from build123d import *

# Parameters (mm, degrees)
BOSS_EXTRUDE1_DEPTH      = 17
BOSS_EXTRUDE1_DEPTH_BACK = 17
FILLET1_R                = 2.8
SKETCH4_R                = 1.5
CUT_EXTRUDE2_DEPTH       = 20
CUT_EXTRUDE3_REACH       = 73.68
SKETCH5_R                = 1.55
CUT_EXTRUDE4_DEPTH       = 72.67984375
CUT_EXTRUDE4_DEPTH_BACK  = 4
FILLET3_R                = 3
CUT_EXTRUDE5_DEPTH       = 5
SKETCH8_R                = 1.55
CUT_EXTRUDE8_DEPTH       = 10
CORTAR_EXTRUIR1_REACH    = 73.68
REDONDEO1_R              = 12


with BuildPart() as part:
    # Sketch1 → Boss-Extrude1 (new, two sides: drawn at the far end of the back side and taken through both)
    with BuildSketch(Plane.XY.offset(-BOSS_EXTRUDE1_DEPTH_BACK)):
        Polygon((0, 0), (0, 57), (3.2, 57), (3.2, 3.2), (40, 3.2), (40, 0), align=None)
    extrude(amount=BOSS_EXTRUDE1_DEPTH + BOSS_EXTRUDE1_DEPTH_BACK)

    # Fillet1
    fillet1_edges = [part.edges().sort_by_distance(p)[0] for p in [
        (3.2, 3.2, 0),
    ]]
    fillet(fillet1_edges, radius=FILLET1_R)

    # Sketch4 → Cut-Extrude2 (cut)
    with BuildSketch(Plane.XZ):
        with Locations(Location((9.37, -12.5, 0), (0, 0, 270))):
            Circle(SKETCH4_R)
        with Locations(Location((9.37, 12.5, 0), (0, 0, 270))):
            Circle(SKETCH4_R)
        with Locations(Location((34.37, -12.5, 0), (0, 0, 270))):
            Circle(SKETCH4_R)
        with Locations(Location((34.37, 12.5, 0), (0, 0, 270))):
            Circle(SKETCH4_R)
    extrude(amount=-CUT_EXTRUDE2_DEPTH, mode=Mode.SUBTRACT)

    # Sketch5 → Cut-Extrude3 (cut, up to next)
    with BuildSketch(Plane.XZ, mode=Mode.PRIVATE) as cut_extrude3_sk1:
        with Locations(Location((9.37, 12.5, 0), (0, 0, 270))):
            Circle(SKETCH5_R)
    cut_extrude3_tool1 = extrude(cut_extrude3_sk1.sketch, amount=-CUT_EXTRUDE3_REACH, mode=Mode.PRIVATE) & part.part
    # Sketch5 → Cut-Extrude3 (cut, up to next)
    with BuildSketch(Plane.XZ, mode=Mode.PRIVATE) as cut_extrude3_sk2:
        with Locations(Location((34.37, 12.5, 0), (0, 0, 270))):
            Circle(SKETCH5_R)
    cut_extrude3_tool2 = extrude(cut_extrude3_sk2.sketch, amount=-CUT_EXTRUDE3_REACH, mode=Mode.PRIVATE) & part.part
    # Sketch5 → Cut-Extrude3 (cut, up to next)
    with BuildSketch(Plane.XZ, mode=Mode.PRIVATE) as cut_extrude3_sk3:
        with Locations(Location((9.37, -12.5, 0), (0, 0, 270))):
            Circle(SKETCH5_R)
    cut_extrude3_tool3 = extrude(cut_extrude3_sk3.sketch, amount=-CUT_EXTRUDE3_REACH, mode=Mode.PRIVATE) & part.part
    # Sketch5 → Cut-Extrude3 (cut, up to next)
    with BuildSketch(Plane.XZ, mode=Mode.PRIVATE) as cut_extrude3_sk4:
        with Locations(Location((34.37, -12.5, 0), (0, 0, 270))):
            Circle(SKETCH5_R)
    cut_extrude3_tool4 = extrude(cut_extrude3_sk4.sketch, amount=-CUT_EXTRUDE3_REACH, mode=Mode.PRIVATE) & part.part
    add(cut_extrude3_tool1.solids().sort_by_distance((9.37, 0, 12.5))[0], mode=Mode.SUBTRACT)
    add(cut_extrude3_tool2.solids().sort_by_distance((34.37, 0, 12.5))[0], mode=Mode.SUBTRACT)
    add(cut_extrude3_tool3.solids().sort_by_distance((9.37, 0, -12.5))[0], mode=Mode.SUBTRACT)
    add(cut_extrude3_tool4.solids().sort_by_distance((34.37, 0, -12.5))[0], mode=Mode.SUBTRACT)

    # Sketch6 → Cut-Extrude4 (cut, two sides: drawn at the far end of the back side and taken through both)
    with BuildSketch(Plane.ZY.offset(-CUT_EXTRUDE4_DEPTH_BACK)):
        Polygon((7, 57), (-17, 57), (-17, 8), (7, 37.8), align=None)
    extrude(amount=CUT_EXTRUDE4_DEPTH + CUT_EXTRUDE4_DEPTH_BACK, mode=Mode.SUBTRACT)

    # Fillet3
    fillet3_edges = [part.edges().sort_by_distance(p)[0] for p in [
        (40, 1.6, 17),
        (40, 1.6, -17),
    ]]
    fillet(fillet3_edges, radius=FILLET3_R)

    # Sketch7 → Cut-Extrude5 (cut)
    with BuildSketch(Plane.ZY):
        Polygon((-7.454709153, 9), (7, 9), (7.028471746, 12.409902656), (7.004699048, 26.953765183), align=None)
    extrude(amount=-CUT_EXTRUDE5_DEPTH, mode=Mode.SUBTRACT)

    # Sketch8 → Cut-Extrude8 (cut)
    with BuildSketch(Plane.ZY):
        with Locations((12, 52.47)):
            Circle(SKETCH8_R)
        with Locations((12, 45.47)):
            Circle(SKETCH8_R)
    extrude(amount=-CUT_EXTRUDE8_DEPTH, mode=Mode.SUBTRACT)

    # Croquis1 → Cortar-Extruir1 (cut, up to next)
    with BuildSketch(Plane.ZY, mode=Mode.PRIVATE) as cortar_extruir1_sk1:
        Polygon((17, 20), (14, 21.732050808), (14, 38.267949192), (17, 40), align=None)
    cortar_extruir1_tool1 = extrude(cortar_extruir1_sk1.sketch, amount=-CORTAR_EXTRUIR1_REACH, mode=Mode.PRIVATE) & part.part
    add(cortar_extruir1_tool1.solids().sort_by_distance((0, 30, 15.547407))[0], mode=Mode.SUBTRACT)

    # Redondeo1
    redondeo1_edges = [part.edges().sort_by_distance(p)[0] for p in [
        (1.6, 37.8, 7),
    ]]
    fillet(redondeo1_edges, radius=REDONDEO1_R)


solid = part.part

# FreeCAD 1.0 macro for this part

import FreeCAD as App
import Part
import Sketcher
Q = App.Units.Quantity


def edges_at(feature, points):
    """Names of the edges that pass closest to the given points."""
    edges = feature.Shape.Edges
    near = lambda p: min(range(len(edges)), key=lambda i: edges[i].distToShape(Part.Vertex(*p))[0])
    return sorted({f"Edge{near(p) + 1}" for p in points})

doc = App.newDocument("Part")
params = doc.addObject("Spreadsheet::Sheet", "Params")
for row, (alias, value) in enumerate([
    ("sketch1_width", "40 mm"),
    ("sketch1_height", "57 mm"),
    ("sketch1_width2", "36.8 mm"),
    ("pad1_length", "17 mm"),
    ("pad1_length2", "17 mm"),
    ("fillet_radius", "2.8 mm"),
    ("sketch2_diameter", "3 mm"),
    ("pocket1_length", "20 mm"),
    ("sketch3_diameter", "3.1 mm"),
    ("pocket2_length", "3.2 mm"),
    ("sketch4_diameter", "3.1 mm"),
    ("pocket3_length", "3.2 mm"),
    ("sketch5_diameter", "3.1 mm"),
    ("pocket4_length", "3.2 mm"),
    ("sketch6_diameter", "3.1 mm"),
    ("pocket5_length", "3.2 mm"),
    ("sketch7_width", "49 mm"),
    ("sketch7_height", "24 mm"),
    ("sketch7_width2", "19.2 mm"),
    ("fillet2_radius", "3 mm"),
    ("pocket7_length", "5 mm"),
    ("sketch9_diameter", "3.1 mm"),
    ("pocket8_length", "10 mm"),
    ("sketch10_width", "20 mm"),
    ("fillet3_radius", "12 mm"),
], start=1):
    params.set(f"A{row}", alias)
    params.set(f"B{row}", "=" + value)
    params.setAlias(f"B{row}", alias)

body = doc.addObject("PartDesign::Body", "Body")

# Sketch on XY plane
sketch1 = body.newObject("Sketcher::SketchObject", "Sketch")
sketch1.AttachmentSupport = (doc.getObject("XY_Plane"), [""])
sketch1.MapMode = "FlatFace"
sketch1.addGeometry([
    Part.LineSegment(App.Vector(0, 57, 0), App.Vector(0, 0, 0)),  # 0
    Part.LineSegment(App.Vector(0, 0, 0), App.Vector(40, 0, 0)),  # 1
    Part.LineSegment(App.Vector(40, 0, 0), App.Vector(40, 3.2, 0)),  # 2
    Part.LineSegment(App.Vector(40, 3.2, 0), App.Vector(3.2, 3.2, 0)),  # 3
    Part.LineSegment(App.Vector(3.2, 3.2, 0), App.Vector(3.2, 57, 0)),  # 4
    Part.LineSegment(App.Vector(3.2, 57, 0), App.Vector(0, 57, 0)),  # 5
], False)
sketch1.addConstraint([
    Sketcher.Constraint("Coincident", 0, 2, 1, 1),
    Sketcher.Constraint("Coincident", 1, 2, 2, 1),
    Sketcher.Constraint("Coincident", 2, 2, 3, 1),
    Sketcher.Constraint("Coincident", 3, 2, 4, 1),
    Sketcher.Constraint("Coincident", 4, 2, 5, 1),
    Sketcher.Constraint("Coincident", 5, 2, 0, 1),
    Sketcher.Constraint("Vertical", 0),
    Sketcher.Constraint("Horizontal", 1),
    Sketcher.Constraint("Vertical", 2),
    Sketcher.Constraint("Horizontal", 3),
    Sketcher.Constraint("Vertical", 4),
    Sketcher.Constraint("Horizontal", 5),
    Sketcher.Constraint("Coincident", 0, 2, -1, 1),
    Sketcher.Constraint("Equal", 5, 2),
    Sketcher.Constraint("DistanceX", 1, 1, 1, 2, 40.0),
    Sketcher.Constraint("DistanceY", 0, 2, 0, 1, 57.0),
    Sketcher.Constraint("DistanceX", 3, 2, 3, 1, 36.8),
])
sketch1.setExpression("Constraints[14]", "Params.sketch1_width")
sketch1.setExpression("Constraints[15]", "Params.sketch1_height")
sketch1.setExpression("Constraints[16]", "Params.sketch1_width2")
pad1 = body.newObject("PartDesign::Pad", "Pad")
pad1.Profile = sketch1
pad1.Type = "TwoLengths"
pad1.setExpression("Length", "Params.pad1_length")
pad1.setExpression("Length2", "Params.pad1_length2")
doc.recompute()

fillet = body.newObject("PartDesign::Fillet", "Fillet")
fillet.Base = (pad1, edges_at(pad1, [(3.2, 3.2, 0)]))
fillet.setExpression("Radius", "Params.fillet_radius")

# Sketch on XZ plane
sketch2 = body.newObject("Sketcher::SketchObject", "Sketch001")
sketch2.AttachmentSupport = (doc.getObject("XZ_Plane"), [""])
sketch2.MapMode = "FlatFace"
sketch2.addGeometry([
    Part.Circle(App.Vector(9.4, -12.5, 0), App.Vector(0, 0, 1), 1.5),
    Part.Circle(App.Vector(9.4, 12.5, 0), App.Vector(0, 0, 1), 1.5),
    Part.Circle(App.Vector(34.4, -12.5, 0), App.Vector(0, 0, 1), 1.5),
    Part.Circle(App.Vector(34.4, 12.5, 0), App.Vector(0, 0, 1), 1.5),
], False)
sketch2.addConstraint([
    Sketcher.Constraint("Equal", 0, 1),
    Sketcher.Constraint("Equal", 1, 2),
    Sketcher.Constraint("Equal", 2, 3),
    Sketcher.Constraint("Symmetric", 0, 3, 1, 3, -1),
    Sketcher.Constraint("Symmetric", 2, 3, 3, 3, -1),
    Sketcher.Constraint("Horizontal", 0, 3, 2, 3),
    Sketcher.Constraint("Diameter", 0, 3.0),
    Sketcher.Constraint("DistanceY", 0, 3, 1, 3, 25.0),
    Sketcher.Constraint("DistanceX", 0, 3, 2, 3, 25.0),
    Sketcher.Constraint("DistanceX", -1, 1, 0, 3, 9.37),
])
sketch2.setExpression("Constraints[6]", "Params.sketch2_diameter")
pocket1 = body.newObject("PartDesign::Pocket", "Pocket")
pocket1.Profile = sketch2
pocket1.setExpression("Length", "Params.pocket1_length")

# Sketch on XZ plane
sketch3 = body.newObject("Sketcher::SketchObject", "Sketch002")
sketch3.AttachmentSupport = (doc.getObject("XZ_Plane"), [""])
sketch3.MapMode = "FlatFace"
sketch3.addGeometry(Part.Circle(App.Vector(9.4, 12.5, 0), App.Vector(0, 0, 1), 1.6), False)
sketch3.addConstraint([
    Sketcher.Constraint("Diameter", 0, 3.1),
    Sketcher.Constraint("DistanceY", -1, 1, 0, 3, 12.5),
    Sketcher.Constraint("DistanceX", -1, 1, 0, 3, 9.37),
])
sketch3.setExpression("Constraints[0]", "Params.sketch3_diameter")
pocket2 = body.newObject("PartDesign::Pocket", "Pocket001")
pocket2.Profile = sketch3
pocket2.setExpression("Length", "Params.pocket2_length")

# Sketch on XZ plane
sketch4 = body.newObject("Sketcher::SketchObject", "Sketch003")
sketch4.AttachmentSupport = (doc.getObject("XZ_Plane"), [""])
sketch4.MapMode = "FlatFace"
sketch4.addGeometry(Part.Circle(App.Vector(34.4, 12.5, 0), App.Vector(0, 0, 1), 1.6), False)
sketch4.addConstraint([
    Sketcher.Constraint("Diameter", 0, 3.1),
    Sketcher.Constraint("DistanceY", -1, 1, 0, 3, 12.5),
    Sketcher.Constraint("DistanceX", -1, 1, 0, 3, 34.37),
])
sketch4.setExpression("Constraints[0]", "Params.sketch4_diameter")
pocket3 = body.newObject("PartDesign::Pocket", "Pocket002")
pocket3.Profile = sketch4
pocket3.setExpression("Length", "Params.pocket3_length")

# Sketch on XZ plane
sketch5 = body.newObject("Sketcher::SketchObject", "Sketch004")
sketch5.AttachmentSupport = (doc.getObject("XZ_Plane"), [""])
sketch5.MapMode = "FlatFace"
sketch5.addGeometry(Part.Circle(App.Vector(9.4, -12.5, 0), App.Vector(0, 0, 1), 1.6), False)
sketch5.addConstraint([
    Sketcher.Constraint("Diameter", 0, 3.1),
    Sketcher.Constraint("DistanceY", 0, 3, -1, 1, 12.5),
    Sketcher.Constraint("DistanceX", -1, 1, 0, 3, 9.37),
])
sketch5.setExpression("Constraints[0]", "Params.sketch5_diameter")
pocket4 = body.newObject("PartDesign::Pocket", "Pocket003")
pocket4.Profile = sketch5
pocket4.setExpression("Length", "Params.pocket4_length")

# Sketch on XZ plane
sketch6 = body.newObject("Sketcher::SketchObject", "Sketch005")
sketch6.AttachmentSupport = (doc.getObject("XZ_Plane"), [""])
sketch6.MapMode = "FlatFace"
sketch6.addGeometry(Part.Circle(App.Vector(34.4, -12.5, 0), App.Vector(0, 0, 1), 1.6), False)
sketch6.addConstraint([
    Sketcher.Constraint("Diameter", 0, 3.1),
    Sketcher.Constraint("DistanceY", 0, 3, -1, 1, 12.5),
    Sketcher.Constraint("DistanceX", -1, 1, 0, 3, 34.37),
])
sketch6.setExpression("Constraints[0]", "Params.sketch6_diameter")
pocket5 = body.newObject("PartDesign::Pocket", "Pocket004")
pocket5.Profile = sketch6
pocket5.setExpression("Length", "Params.pocket5_length")

# Sketch on YZ plane
sketch7 = body.newObject("Sketcher::SketchObject", "Sketch006")
sketch7.AttachmentSupport = (doc.getObject("YZ_Plane"), [""])
sketch7.MapMode = "FlatFace"
sketch7.addGeometry([
    Part.LineSegment(App.Vector(57, 7, 0), App.Vector(57, -17, 0)),
    Part.LineSegment(App.Vector(57, -17, 0), App.Vector(8, -17, 0)),
    Part.LineSegment(App.Vector(8, -17, 0), App.Vector(38, 7, 0)),
    Part.LineSegment(App.Vector(38, 7, 0), App.Vector(57, 7, 0)),
], False)
sketch7.addConstraint([
    Sketcher.Constraint("Coincident", 0, 2, 1, 1),
    Sketcher.Constraint("Coincident", 1, 2, 2, 1),
    Sketcher.Constraint("Coincident", 2, 2, 3, 1),
    Sketcher.Constraint("Coincident", 3, 2, 0, 1),
    Sketcher.Constraint("Vertical", 0),
    Sketcher.Constraint("Horizontal", 1),
    Sketcher.Constraint("Horizontal", 3),
    Sketcher.Constraint("DistanceX", 1, 2, 1, 1, 49.0),
    Sketcher.Constraint("DistanceY", 0, 2, 0, 1, 24.0),
    Sketcher.Constraint("DistanceX", 3, 1, 3, 2, 19.2),
    Sketcher.Constraint("DistanceX", -1, 1, 0, 2, 57.0),
    Sketcher.Constraint("DistanceY", 0, 2, -1, 1, 17.0),
])
sketch7.setExpression("Constraints[7]", "Params.sketch7_width")
sketch7.setExpression("Constraints[8]", "Params.sketch7_height")
sketch7.setExpression("Constraints[9]", "Params.sketch7_width2")
pocket6 = body.newObject("PartDesign::Pocket", "Pocket005")
pocket6.Profile = sketch7
pocket6.Type = "ThroughAll"
pocket6.Midplane = True
doc.recompute()

fillet2 = body.newObject("PartDesign::Fillet", "Fillet001")
fillet2.Base = (pocket6, edges_at(pocket6, [(40, 1.6, 17), (40, 1.6, -17)]))
fillet2.setExpression("Radius", "Params.fillet2_radius")

# Sketch on YZ plane
sketch8 = body.newObject("Sketcher::SketchObject", "Sketch007")
sketch8.AttachmentSupport = (doc.getObject("YZ_Plane"), [""])
sketch8.MapMode = "FlatFace"
sketch8.addGeometry([
    Part.LineSegment(App.Vector(9, -7.454709, 0), App.Vector(9, 7, 0)),
    Part.LineSegment(App.Vector(9, 7, 0), App.Vector(12.409903, 7.028472, 0)),
    Part.LineSegment(App.Vector(12.409903, 7.028472, 0), App.Vector(26.953765, 7.004699, 0)),
    Part.LineSegment(App.Vector(26.953765, 7.004699, 0), App.Vector(9, -7.454709, 0)),
], False)
sketch8.addConstraint([
    Sketcher.Constraint("Coincident", 0, 2, 1, 1),
    Sketcher.Constraint("Coincident", 1, 2, 2, 1),
    Sketcher.Constraint("Coincident", 2, 2, 3, 1),
    Sketcher.Constraint("Coincident", 3, 2, 0, 1),
    Sketcher.Constraint("Vertical", 0),
    Sketcher.Constraint("DistanceX", -1, 1, 0, 2, 9.0),
    Sketcher.Constraint("DistanceY", -1, 1, 0, 2, 7.0),
    Sketcher.Constraint("DistanceY", 0, 1, 0, 2, 14.454709),
    Sketcher.Constraint("DistanceY", -1, 1, 2, 2, 7.004699),
    Sketcher.Constraint("Distance", 1, 3.410022),
    Sketcher.Constraint("Distance", 2, 14.543882),
    Sketcher.Constraint("Distance", 3, 23.052379),
])
pocket7 = body.newObject("PartDesign::Pocket", "Pocket006")
pocket7.Profile = sketch8
pocket7.setExpression("Length", "Params.pocket7_length")
pocket7.Reversed = True

# Sketch on YZ plane
sketch9 = body.newObject("Sketcher::SketchObject", "Sketch008")
sketch9.AttachmentSupport = (doc.getObject("YZ_Plane"), [""])
sketch9.MapMode = "FlatFace"
sketch9.addGeometry([
    Part.Circle(App.Vector(52.5, 12, 0), App.Vector(0, 0, 1), 1.6),
    Part.Circle(App.Vector(45.5, 12, 0), App.Vector(0, 0, 1), 1.6),
], False)
sketch9.addConstraint([
    Sketcher.Constraint("Equal", 0, 1),
    Sketcher.Constraint("Horizontal", 0, 3, 1, 3),
    Sketcher.Constraint("Diameter", 0, 3.1),
    Sketcher.Constraint("DistanceY", -1, 1, 0, 3, 12.0),
    Sketcher.Constraint("DistanceX", 1, 3, 0, 3, 7.0),
    Sketcher.Constraint("DistanceX", -1, 1, 0, 3, 52.47),
])
sketch9.setExpression("Constraints[2]", "Params.sketch9_diameter")
pocket8 = body.newObject("PartDesign::Pocket", "Pocket007")
pocket8.Profile = sketch9
pocket8.setExpression("Length", "Params.pocket8_length")
pocket8.Reversed = True

# Sketch on YZ plane
sketch10 = body.newObject("Sketcher::SketchObject", "Sketch009")
sketch10.AttachmentSupport = (doc.getObject("YZ_Plane"), [""])
sketch10.MapMode = "FlatFace"
sketch10.addGeometry([
    Part.LineSegment(App.Vector(21.7, 14, 0), App.Vector(20, 17, 0)),
    Part.LineSegment(App.Vector(20, 17, 0), App.Vector(40, 17, 0)),
    Part.LineSegment(App.Vector(40, 17, 0), App.Vector(38.3, 14, 0)),
    Part.LineSegment(App.Vector(38.3, 14, 0), App.Vector(21.7, 14, 0)),
], False)
sketch10.addConstraint([
    Sketcher.Constraint("Coincident", 0, 2, 1, 1),
    Sketcher.Constraint("Coincident", 1, 2, 2, 1),
    Sketcher.Constraint("Coincident", 2, 2, 3, 1),
    Sketcher.Constraint("Coincident", 3, 2, 0, 1),
    Sketcher.Constraint("Horizontal", 1),
    Sketcher.Constraint("Horizontal", 3),
    Sketcher.Constraint("Equal", 0, 2),
    Sketcher.Constraint("DistanceX", 1, 1, 1, 2, 20.0),
    Sketcher.Constraint("Angle", 0, Q("120 deg")),
    Sketcher.Constraint("DistanceX", -1, 1, 0, 2, 20.0),
    Sketcher.Constraint("DistanceY", -1, 1, 0, 2, 17.0),
    Sketcher.Constraint("DistanceY", -1, 1, 2, 2, 14.0),
])
sketch10.setExpression("Constraints[7]", "Params.sketch10_width")
pocket9 = body.newObject("PartDesign::Pocket", "Pocket008")
pocket9.Profile = sketch10
pocket9.Type = "UpToFirst"
pocket9.Reversed = True
doc.recompute()

fillet3 = body.newObject("PartDesign::Fillet", "Fillet002")
fillet3.Base = (pocket9, edges_at(pocket9, [(1.6, 37.8, 7)]))
fillet3.setExpression("Radius", "Params.fillet3_radius")

doc.recompute()
